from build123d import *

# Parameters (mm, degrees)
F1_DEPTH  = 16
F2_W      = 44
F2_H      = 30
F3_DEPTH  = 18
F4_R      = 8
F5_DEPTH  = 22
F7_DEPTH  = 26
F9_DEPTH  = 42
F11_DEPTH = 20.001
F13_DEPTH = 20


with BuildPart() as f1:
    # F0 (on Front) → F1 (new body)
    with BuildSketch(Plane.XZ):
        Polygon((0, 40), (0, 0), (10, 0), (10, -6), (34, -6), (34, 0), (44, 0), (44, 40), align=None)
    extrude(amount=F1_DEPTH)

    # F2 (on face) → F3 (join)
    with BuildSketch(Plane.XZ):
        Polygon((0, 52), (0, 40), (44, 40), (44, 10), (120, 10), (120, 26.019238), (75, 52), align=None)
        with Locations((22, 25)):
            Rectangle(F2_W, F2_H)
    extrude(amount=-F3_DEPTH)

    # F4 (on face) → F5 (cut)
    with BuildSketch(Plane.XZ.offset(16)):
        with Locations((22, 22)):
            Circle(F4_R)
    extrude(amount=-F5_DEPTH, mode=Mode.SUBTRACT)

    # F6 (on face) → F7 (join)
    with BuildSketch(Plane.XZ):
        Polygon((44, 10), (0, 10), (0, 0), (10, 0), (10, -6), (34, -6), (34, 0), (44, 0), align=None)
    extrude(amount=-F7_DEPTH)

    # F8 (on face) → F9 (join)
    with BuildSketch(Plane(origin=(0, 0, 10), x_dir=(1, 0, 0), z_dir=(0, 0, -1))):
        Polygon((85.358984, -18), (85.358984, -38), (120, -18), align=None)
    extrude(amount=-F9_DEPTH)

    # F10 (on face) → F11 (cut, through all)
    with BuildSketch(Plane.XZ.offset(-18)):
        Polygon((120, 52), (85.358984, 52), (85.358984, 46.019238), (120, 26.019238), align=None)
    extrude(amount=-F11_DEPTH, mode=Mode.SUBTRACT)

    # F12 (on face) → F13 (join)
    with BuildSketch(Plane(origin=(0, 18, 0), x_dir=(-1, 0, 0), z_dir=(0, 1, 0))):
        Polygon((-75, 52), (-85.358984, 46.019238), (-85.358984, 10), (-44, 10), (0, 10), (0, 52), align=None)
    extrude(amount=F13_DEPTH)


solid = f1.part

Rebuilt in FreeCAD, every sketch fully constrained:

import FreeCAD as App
import Part
import Sketcher
from FreeCAD import Vector
Q = App.Units.Quantity


def add_polygon(sketch, points):
    """Adds a closed chain of lines whose ends are joined by coincident constraints."""
    first, n = sketch.GeometryCount, len(points)
    for a, b in zip(points, points[1:] + points[:1]):
        sketch.addGeometry(Part.LineSegment(App.Vector(*a, 0), App.Vector(*b, 0)), False)
    for i in range(n):
        sketch.addConstraint(Sketcher.Constraint("Coincident", first + i, 2, first + (i + 1) % n, 1))

doc = App.newDocument("Part")
body = doc.addObject("PartDesign::Body", "Body")

# Sketch on XZ plane
sketch1 = doc.addObject("Sketcher::SketchObject", "Sketch")
body.addObject(sketch1)
sketch1.AttachmentSupport = (doc.XZ_Plane, [""])
sketch1.MapMode = "FlatFace"
add_polygon(sketch1, [(0, 40), (0, 0), (10, 0), (10, -6), (34, -6), (34, 0), (44, 0), (44, 40)])  # lines 0-7
sketch1.addConstraint([
    Sketcher.Constraint("Vertical", 0),
    Sketcher.Constraint("Horizontal", 1),
    Sketcher.Constraint("Vertical", 2),
    Sketcher.Constraint("Horizontal", 3),
    Sketcher.Constraint("Vertical", 4),
    Sketcher.Constraint("Horizontal", 5),
    Sketcher.Constraint("Vertical", 6),
    Sketcher.Constraint("Horizontal", 7),
    Sketcher.Constraint("Coincident", 0, 2, -1, 1),
    Sketcher.Constraint("PointOnObject", 4, 2, -1),
    Sketcher.Constraint("Equal", 1, 5),
    Sketcher.Constraint("DistanceX", 1, 1, 1, 2, Q("10 mm")),
    Sketcher.Constraint("DistanceX", 3, 1, 3, 2, Q("24 mm")),
    Sketcher.Constraint("DistanceY", 0, 2, 0, 1, Q("40 mm")),
    Sketcher.Constraint("DistanceY", 2, 2, 2, 1, Q("6 mm")),
])
pad1 = doc.addObject("PartDesign::Pad", "Pad")
body.addObject(pad1)
pad1.Profile = sketch1
pad1.Length = 16

# Sketch on XZ plane
sketch2 = doc.addObject("Sketcher::SketchObject", "Sketch001")
body.addObject(sketch2)
sketch2.AttachmentSupport = (doc.XZ_Plane, [""])
sketch2.MapMode = "FlatFace"
add_polygon(sketch2, [(0, 52), (0, 10), (120, 10), (120, 26.019238), (75, 52)])  # lines 0-4
sketch2.addConstraint([
    Sketcher.Constraint("Vertical", 0),
    Sketcher.Constraint("Horizontal", 1),
    Sketcher.Constraint("Vertical", 2),
    Sketcher.Constraint("Horizontal", 4),
    Sketcher.Constraint("PointOnObject", 0, 2, -2),
    Sketcher.Constraint("DistanceX", 1, 1, 1, 2, Q("120 mm")),
    Sketcher.Constraint("DistanceX", 4, 2, 4, 1, Q("75 mm")),
    Sketcher.Constraint("DistanceY", 0, 2, 0, 1, Q("42 mm")),
    Sketcher.Constraint("Angle", 3, Q("150 deg")),
    Sketcher.Constraint("DistanceY", -1, 1, 0, 2, Q("10 mm")),
])
pad2 = doc.addObject("PartDesign::Pad", "Pad001")
body.addObject(pad2)
pad2.Profile = sketch2
pad2.Length = 18
pad2.Reversed = True

# Sketch on XZ plane
sketch3 = doc.addObject("Sketcher::SketchObject", "Sketch002")
body.addObject(sketch3)
sketch3.AttachmentSupport = (doc.XZ_Plane, [""])
sketch3.MapMode = "FlatFace"
sketch3.AttachmentOffset = App.Placement(Vector(0, 0, 16), App.Rotation())
sketch3.addGeometry(Part.Circle(Vector(22, 22, 0), Vector(0, 0, 1), 8), False)
sketch3.addConstraint([
    Sketcher.Constraint("Diameter", 0, Q("16 mm")),
    Sketcher.Constraint("DistanceX", -1, 1, 0, 3, Q("22 mm")),
    Sketcher.Constraint("DistanceY", -1, 1, 0, 3, Q("22 mm")),
])
pocket1 = doc.addObject("PartDesign::Pocket", "Pocket")
body.addObject(pocket1)
pocket1.Profile = sketch3
pocket1.Length = 22

# Sketch on XZ plane
sketch4 = doc.addObject("Sketcher::SketchObject", "Sketch003")
body.addObject(sketch4)
sketch4.AttachmentSupport = (doc.XZ_Plane, [""])
sketch4.MapMode = "FlatFace"
add_polygon(sketch4, [(44, 10), (0, 10), (0, 0), (10, 0), (10, -6), (34, -6), (34, 0), (44, 0)])  # lines 0-7
sketch4.addConstraint([
    Sketcher.Constraint("Horizontal", 0),
    Sketcher.Constraint("Vertical", 1),
    Sketcher.Constraint("Horizontal", 2),
    Sketcher.Constraint("Vertical", 3),
    Sketcher.Constraint("Horizontal", 4),
    Sketcher.Constraint("Vertical", 5),
    Sketcher.Constraint("Horizontal", 6),
    Sketcher.Constraint("Vertical", 7),
    Sketcher.Constraint("Coincident", 1, 2, -1, 1),
    Sketcher.Constraint("PointOnObject", 5, 2, -1),
    Sketcher.Constraint("Equal", 2, 6),
    Sketcher.Constraint("Equal", 6, 1),
    Sketcher.Constraint("DistanceX", 0, 2, 0, 1, Q("44 mm")),
    Sketcher.Constraint("DistanceX", 2, 1, 2, 2, Q("10 mm")),
    Sketcher.Constraint("DistanceY", 3, 2, 3, 1, Q("6 mm")),
])
pad3 = doc.addObject("PartDesign::Pad", "Pad002")
body.addObject(pad3)
pad3.Profile = sketch4
pad3.Length = 26
pad3.Reversed = True

# Sketch on XY plane
sketch5 = doc.addObject("Sketcher::SketchObject", "Sketch004")
body.addObject(sketch5)
sketch5.AttachmentSupport = (doc.XY_Plane, [""])
sketch5.MapMode = "FlatFace"
sketch5.AttachmentOffset = App.Placement(Vector(0, 0, 10), App.Rotation())
add_polygon(sketch5, [(85.358984, 18), (85.358984, 38), (120, 18)])  # lines 0-2
sketch5.addConstraint([
    Sketcher.Constraint("Vertical", 0),
    Sketcher.Constraint("Horizontal", 2),
    Sketcher.Constraint("DistanceY", 0, 1, 0, 2, Q("20 mm")),
    Sketcher.Constraint("Angle", 1, Q("-30 deg")),
    Sketcher.Constraint("DistanceY", -1, 1, 0, 2, Q("38 mm")),
    Sketcher.Constraint("DistanceX", -1, 1, 1, 2, Q("120 mm")),
])
pad4 = doc.addObject("PartDesign::Pad", "Pad003")
body.addObject(pad4)
pad4.Profile = sketch5
pad4.Length = 42

# Sketch on XZ plane
sketch6 = doc.addObject("Sketcher::SketchObject", "Sketch005")
body.addObject(sketch6)
sketch6.AttachmentSupport = (doc.XZ_Plane, [""])
sketch6.MapMode = "FlatFace"
sketch6.AttachmentOffset = App.Placement(Vector(0, 0, -18), App.Rotation())
add_polygon(sketch6, [(120, 52), (85.358984, 52), (85.358984, 46.019238), (120, 26.019238)])  # lines 0-3
sketch6.addConstraint([
    Sketcher.Constraint("Horizontal", 0),
    Sketcher.Constraint("Vertical", 1),
    Sketcher.Constraint("Vertical", 3),
    Sketcher.Constraint("Angle", 2, Q("-30 deg")),
    Sketcher.Constraint("Distance", 2, Q("40 mm")),
    Sketcher.Constraint("DistanceY", -1, 1, 0, 2, Q("52 mm")),
    Sketcher.Constraint("DistanceX", -1, 1, 2, 2, Q("120 mm")),
    Sketcher.Constraint("DistanceY", 1, 2, 1, 1, Q("5.980762 mm")),
])
pocket2 = doc.addObject("PartDesign::Pocket", "Pocket001")
body.addObject(pocket2)
pocket2.Profile = sketch6
pocket2.Type = "ThroughAll"

# Sketch on XZ plane
sketch7 = doc.addObject("Sketcher::SketchObject", "Sketch006")
body.addObject(sketch7)
sketch7.AttachmentSupport = (doc.XZ_Plane, [""])
sketch7.MapMode = "FlatFace"
sketch7.AttachmentOffset = App.Placement(Vector(0, 0, -18), App.Rotation())
add_polygon(sketch7, [(75, 52), (85.358984, 46.019238), (85.358984, 10), (0, 10), (0, 52)])  # lines 0-4
sketch7.addConstraint([
    Sketcher.Constraint("Vertical", 1),
    Sketcher.Constraint("Horizontal", 2),
    Sketcher.Constraint("Vertical", 3),
    Sketcher.Constraint("Horizontal", 4),
    Sketcher.Constraint("PointOnObject", 2, 2, -2),
    Sketcher.Constraint("DistanceX", 4, 1, 4, 2, Q("75 mm")),
    Sketcher.Constraint("DistanceY", 3, 1, 3, 2, Q("42 mm")),
    Sketcher.Constraint("Angle", 0, Q("-29.999999 deg")),
    Sketcher.Constraint("DistanceY", -1, 1, 1, 2, Q("10 mm")),
    Sketcher.Constraint("DistanceX", 2, 2, 2, 1, Q("85.358984 mm")),
])
pad5 = doc.addObject("PartDesign::Pad", "Pad004")
body.addObject(pad5)
pad5.Profile = sketch7
pad5.Length = 20
pad5.Reversed = True

doc.recompute()
